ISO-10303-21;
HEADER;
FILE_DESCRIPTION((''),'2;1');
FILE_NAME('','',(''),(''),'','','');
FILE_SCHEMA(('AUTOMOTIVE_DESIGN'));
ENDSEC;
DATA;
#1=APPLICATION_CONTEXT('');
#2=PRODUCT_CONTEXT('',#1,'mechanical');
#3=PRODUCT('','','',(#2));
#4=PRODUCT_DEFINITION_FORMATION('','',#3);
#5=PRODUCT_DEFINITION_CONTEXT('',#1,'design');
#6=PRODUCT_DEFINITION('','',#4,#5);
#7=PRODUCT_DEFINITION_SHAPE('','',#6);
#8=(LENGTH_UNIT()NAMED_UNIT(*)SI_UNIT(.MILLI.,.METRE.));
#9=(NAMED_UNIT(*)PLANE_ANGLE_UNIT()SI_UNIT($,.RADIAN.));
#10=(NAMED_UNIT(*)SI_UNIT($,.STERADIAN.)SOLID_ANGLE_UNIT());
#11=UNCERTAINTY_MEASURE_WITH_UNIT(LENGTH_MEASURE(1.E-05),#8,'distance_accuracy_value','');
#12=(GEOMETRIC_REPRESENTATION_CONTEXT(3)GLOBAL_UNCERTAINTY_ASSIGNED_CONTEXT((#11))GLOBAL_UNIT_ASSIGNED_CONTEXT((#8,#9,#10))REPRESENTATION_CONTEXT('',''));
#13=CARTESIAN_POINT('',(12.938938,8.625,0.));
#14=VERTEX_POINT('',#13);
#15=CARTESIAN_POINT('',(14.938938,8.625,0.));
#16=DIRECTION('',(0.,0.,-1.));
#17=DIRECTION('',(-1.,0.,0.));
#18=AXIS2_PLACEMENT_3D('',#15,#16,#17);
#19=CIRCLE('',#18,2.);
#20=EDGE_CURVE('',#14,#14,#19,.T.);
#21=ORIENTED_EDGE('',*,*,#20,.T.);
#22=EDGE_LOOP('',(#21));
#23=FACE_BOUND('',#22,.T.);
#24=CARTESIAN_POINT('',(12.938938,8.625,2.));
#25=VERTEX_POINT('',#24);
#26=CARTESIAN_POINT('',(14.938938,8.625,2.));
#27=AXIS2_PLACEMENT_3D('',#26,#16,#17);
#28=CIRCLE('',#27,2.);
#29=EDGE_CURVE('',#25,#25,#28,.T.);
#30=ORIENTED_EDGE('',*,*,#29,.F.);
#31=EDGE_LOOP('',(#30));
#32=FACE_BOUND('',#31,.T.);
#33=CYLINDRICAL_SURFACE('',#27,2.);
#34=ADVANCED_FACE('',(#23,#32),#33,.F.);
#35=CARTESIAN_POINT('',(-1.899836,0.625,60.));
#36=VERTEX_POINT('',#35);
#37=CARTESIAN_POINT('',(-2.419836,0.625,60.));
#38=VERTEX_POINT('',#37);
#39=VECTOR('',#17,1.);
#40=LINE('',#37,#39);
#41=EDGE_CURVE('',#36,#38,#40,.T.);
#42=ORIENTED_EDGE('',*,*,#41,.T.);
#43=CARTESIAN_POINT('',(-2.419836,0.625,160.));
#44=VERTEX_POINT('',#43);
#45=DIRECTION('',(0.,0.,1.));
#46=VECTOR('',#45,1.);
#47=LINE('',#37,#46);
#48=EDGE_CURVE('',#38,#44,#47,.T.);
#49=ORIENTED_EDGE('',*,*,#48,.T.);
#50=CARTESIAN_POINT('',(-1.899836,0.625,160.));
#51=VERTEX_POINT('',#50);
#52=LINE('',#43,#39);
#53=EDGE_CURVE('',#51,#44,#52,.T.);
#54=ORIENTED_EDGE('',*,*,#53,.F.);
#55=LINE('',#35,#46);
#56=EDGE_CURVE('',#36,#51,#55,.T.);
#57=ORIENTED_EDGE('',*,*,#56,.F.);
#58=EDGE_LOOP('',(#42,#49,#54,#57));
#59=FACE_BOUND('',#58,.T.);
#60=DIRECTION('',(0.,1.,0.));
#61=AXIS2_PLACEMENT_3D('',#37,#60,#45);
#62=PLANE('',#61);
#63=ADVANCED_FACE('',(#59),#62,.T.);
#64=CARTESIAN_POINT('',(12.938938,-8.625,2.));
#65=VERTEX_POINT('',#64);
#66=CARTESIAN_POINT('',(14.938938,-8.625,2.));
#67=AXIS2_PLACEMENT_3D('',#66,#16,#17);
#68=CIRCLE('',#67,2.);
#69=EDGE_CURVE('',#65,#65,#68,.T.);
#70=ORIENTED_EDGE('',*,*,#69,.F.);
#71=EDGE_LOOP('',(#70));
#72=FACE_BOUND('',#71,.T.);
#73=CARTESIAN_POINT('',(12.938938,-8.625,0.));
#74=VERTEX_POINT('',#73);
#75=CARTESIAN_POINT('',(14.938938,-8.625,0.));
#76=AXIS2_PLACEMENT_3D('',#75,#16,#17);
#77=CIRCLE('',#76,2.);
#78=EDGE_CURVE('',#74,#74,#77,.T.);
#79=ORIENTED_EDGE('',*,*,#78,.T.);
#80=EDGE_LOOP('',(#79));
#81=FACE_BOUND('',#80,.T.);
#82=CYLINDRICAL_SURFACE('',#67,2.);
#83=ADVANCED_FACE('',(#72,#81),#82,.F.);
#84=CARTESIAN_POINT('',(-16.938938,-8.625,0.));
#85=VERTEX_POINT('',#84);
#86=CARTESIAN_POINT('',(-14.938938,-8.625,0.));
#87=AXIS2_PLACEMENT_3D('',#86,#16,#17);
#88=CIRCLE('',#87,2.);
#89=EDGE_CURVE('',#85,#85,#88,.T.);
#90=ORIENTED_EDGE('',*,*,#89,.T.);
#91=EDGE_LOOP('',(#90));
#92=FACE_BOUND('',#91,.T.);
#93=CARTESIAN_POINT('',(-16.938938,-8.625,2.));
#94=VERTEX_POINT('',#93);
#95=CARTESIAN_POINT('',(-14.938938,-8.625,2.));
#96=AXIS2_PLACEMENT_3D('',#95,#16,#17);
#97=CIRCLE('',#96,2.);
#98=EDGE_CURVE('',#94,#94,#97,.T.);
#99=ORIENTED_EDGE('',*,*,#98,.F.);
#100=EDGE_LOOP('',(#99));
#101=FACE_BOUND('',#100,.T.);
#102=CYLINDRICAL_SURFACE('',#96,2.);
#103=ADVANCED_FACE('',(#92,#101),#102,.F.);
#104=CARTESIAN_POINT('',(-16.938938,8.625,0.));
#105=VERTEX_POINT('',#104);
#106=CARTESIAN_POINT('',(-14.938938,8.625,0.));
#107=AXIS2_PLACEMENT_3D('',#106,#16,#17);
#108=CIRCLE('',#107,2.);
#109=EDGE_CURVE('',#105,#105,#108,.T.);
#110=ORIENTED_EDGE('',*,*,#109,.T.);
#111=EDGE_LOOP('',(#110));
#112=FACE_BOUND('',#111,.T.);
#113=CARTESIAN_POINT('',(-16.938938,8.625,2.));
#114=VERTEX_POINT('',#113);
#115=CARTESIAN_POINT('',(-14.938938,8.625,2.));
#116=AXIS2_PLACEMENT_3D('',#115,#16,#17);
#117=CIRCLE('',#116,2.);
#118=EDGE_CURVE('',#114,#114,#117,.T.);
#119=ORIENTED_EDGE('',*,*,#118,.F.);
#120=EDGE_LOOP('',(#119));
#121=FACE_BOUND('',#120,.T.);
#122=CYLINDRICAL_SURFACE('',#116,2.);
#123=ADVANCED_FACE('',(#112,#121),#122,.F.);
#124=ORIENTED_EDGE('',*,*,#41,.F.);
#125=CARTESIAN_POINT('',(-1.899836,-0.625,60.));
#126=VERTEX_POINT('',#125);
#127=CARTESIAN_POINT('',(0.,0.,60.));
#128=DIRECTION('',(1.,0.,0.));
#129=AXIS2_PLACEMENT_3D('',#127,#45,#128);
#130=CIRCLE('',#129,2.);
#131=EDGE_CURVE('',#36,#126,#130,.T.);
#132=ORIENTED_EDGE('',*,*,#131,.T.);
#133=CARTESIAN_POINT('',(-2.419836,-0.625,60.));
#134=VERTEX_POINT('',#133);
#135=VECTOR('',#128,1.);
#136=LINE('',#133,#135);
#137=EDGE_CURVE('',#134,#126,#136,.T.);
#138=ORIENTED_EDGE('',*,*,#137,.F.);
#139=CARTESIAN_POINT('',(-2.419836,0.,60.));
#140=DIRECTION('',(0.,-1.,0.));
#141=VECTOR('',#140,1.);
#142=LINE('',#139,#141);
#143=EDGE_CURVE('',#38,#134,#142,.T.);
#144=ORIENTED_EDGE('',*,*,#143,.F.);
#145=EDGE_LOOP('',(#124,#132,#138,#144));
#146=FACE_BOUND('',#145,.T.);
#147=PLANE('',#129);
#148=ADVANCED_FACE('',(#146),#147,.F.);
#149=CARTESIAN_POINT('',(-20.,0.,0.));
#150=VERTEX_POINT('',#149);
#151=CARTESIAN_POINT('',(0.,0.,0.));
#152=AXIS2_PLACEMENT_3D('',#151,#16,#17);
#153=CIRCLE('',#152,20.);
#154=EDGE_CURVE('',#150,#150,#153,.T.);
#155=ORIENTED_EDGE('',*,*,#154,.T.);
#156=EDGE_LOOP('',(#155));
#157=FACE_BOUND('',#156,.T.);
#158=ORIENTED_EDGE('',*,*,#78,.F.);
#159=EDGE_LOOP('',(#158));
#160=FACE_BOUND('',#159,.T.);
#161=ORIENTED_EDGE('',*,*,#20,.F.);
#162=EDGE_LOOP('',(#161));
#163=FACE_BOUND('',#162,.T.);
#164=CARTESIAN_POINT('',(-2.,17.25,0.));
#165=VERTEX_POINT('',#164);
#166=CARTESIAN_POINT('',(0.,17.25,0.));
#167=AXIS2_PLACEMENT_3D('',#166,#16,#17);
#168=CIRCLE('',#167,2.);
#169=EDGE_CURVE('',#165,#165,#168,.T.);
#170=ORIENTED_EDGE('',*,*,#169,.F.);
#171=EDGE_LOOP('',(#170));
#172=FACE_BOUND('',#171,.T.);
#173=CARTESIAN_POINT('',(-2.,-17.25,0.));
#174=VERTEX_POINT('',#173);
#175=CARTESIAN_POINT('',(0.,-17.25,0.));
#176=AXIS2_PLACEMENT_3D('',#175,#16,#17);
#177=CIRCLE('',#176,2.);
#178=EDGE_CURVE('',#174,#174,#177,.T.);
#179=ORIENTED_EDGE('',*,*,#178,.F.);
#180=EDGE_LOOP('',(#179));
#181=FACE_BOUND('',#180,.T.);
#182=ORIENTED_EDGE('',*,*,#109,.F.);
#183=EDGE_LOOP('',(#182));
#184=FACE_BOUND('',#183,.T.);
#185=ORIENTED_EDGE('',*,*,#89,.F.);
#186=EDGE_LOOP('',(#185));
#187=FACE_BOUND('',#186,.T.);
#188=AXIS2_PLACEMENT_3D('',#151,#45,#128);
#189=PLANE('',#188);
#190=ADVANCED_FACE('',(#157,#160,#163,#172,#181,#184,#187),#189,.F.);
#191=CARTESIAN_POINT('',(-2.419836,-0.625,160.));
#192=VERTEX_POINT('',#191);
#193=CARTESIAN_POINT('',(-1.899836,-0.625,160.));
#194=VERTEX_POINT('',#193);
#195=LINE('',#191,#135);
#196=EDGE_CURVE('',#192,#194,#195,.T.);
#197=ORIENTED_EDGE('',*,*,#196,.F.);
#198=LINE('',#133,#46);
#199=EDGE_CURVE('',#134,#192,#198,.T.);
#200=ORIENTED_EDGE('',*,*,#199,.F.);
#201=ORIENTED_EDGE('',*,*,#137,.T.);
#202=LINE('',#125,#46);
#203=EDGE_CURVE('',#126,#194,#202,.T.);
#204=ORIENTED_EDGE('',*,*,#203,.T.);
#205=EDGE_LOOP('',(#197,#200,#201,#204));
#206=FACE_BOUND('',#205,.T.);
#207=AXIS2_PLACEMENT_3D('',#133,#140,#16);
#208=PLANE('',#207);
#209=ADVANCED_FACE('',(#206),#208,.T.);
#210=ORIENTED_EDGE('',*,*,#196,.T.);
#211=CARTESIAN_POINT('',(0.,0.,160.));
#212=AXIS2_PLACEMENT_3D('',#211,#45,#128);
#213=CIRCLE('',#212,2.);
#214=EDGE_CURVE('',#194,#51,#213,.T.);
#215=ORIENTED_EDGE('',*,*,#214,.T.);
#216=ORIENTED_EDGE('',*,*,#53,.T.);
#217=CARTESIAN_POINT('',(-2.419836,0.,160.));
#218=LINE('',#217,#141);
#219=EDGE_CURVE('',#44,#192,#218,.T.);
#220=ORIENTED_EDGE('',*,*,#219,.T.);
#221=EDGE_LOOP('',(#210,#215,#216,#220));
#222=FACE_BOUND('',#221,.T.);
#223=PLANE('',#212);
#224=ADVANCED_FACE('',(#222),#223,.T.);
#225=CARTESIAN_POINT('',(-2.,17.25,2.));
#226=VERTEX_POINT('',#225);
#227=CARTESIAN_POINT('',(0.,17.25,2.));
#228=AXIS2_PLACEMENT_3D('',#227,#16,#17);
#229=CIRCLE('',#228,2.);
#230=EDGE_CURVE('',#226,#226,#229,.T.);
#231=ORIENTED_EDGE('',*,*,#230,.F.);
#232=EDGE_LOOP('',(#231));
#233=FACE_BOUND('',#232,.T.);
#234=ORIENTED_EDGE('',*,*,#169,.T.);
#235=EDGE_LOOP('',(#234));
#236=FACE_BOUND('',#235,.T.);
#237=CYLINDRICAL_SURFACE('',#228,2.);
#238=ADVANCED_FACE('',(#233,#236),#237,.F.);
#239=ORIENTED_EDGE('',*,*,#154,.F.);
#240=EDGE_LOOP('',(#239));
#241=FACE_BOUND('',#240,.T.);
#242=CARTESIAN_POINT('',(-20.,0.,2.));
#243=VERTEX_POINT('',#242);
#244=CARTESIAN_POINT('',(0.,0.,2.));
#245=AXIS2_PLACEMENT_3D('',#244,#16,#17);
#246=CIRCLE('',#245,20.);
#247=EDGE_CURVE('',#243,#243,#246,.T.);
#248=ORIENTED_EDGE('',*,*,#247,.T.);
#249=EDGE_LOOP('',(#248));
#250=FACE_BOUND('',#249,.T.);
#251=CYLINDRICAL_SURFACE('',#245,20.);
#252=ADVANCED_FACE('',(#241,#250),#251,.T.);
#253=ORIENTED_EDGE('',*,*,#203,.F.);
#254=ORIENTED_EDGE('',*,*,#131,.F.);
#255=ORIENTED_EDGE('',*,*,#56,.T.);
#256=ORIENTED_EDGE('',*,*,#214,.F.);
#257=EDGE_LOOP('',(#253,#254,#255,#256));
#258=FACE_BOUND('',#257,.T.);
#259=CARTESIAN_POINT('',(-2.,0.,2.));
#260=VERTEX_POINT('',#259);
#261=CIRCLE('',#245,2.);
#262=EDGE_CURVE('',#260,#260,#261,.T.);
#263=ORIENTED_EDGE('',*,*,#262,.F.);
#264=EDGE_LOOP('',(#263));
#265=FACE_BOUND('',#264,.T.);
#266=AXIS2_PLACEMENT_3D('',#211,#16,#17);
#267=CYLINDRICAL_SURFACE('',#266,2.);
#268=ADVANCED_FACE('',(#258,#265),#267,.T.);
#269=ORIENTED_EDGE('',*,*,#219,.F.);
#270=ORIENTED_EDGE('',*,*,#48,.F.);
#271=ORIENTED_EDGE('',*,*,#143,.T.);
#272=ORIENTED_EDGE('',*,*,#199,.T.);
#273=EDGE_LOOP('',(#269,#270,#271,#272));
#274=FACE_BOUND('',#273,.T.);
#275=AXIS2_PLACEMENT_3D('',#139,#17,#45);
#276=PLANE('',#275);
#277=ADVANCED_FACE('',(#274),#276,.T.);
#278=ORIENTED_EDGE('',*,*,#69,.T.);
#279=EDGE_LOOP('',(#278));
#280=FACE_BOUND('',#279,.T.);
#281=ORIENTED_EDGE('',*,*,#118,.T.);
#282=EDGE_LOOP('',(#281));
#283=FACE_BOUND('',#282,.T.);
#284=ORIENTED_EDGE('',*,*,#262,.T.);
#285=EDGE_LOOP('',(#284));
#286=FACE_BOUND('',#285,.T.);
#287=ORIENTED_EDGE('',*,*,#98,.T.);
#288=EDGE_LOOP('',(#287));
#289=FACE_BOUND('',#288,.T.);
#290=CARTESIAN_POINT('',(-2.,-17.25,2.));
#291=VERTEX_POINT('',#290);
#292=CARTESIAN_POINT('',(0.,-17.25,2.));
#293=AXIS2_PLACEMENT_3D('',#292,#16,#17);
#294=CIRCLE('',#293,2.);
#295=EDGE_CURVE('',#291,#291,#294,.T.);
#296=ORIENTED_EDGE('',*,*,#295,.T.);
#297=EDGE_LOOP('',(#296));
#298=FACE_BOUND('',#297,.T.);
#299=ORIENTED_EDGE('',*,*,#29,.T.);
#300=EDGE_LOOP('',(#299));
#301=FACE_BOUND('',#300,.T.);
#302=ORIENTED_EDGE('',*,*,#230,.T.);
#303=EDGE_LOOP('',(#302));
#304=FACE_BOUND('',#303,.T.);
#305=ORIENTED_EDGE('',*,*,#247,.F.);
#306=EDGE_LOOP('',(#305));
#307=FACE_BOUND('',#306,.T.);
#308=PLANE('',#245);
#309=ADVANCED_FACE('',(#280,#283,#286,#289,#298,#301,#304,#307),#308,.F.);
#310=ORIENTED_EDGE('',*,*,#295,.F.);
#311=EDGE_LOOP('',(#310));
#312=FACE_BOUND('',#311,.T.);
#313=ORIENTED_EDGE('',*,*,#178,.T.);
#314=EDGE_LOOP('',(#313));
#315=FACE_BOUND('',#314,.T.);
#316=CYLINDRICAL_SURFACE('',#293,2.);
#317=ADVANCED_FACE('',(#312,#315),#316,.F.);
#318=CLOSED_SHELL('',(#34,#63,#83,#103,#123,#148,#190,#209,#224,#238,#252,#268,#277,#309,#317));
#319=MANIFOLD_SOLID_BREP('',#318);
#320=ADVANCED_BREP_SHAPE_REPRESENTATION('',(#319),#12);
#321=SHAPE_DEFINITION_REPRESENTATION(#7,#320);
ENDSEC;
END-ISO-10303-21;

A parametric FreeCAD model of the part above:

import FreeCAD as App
import Part
import Sketcher
from FreeCAD import Vector
Q = App.Units.Quantity

doc = App.newDocument("Part")
body = doc.addObject("PartDesign::Body", "Body")

# Sketch on XY plane
sketch1 = doc.addObject("Sketcher::SketchObject", "Sketch")
body.addObject(sketch1)
sketch1.AttachmentSupport = (doc.XY_Plane, [""])
sketch1.MapMode = "FlatFace"
sketch1.addGeometry(Part.Circle(Vector(0, 0, 0), Vector(0, 0, 1), 2), False)
sketch1.addConstraint([
    Sketcher.Constraint("Coincident", 0, 3, -1, 1),
    Sketcher.Constraint("Diameter", 0, Q("4 mm")),
])
pad1 = doc.addObject("PartDesign::Pad", "Pad")
body.addObject(pad1)
pad1.Profile = sketch1
pad1.Length = 160

# Sketch on XY plane
sketch2 = doc.addObject("Sketcher::SketchObject", "Sketch001")
body.addObject(sketch2)
sketch2.AttachmentSupport = (doc.XY_Plane, [""])
sketch2.MapMode = "FlatFace"
sketch2.addGeometry(Part.Circle(Vector(0, 0, 0), Vector(0, 0, 1), 20), False)
sketch2.addConstraint([
    Sketcher.Constraint("Coincident", 0, 3, -1, 1),
    Sketcher.Constraint("Diameter", 0, Q("40 mm")),
])
pad2 = doc.addObject("PartDesign::Pad", "Pad001")
body.addObject(pad2)
pad2.Profile = sketch2
pad2.Length = 2

# Sketch on XY plane
sketch3 = doc.addObject("Sketcher::SketchObject", "Sketch002")
body.addObject(sketch3)
sketch3.AttachmentSupport = (doc.XY_Plane, [""])
sketch3.MapMode = "FlatFace"
sketch3.addGeometry([
    Part.Circle(Vector(0, 17.2, 0), Vector(0, 0, 1), 2),  # 0
    Part.Circle(Vector(-14.9, 8.6, 0), Vector(0, 0, 1), 2),  # 1
    Part.Circle(Vector(-14.9, -8.6, 0), Vector(0, 0, 1), 2),  # 2
    Part.Circle(Vector(0, -17.2, 0), Vector(0, 0, 1), 2),  # 3
    Part.Circle(Vector(14.9, -8.6, 0), Vector(0, 0, 1), 2),  # 4
    Part.Circle(Vector(14.9, 8.6, 0), Vector(0, 0, 1), 2),  # 5
], False)
sketch3.addConstraint([
    Sketcher.Constraint("Equal", 0, 1),
    Sketcher.Constraint("Equal", 1, 2),
    Sketcher.Constraint("Equal", 2, 3),
    Sketcher.Constraint("Equal", 3, 4),
    Sketcher.Constraint("Equal", 4, 5),
    Sketcher.Constraint("Symmetric", 0, 3, 3, 3, -1, 1),
    Sketcher.Constraint("Symmetric", 1, 3, 4, 3, -1, 1),
    Sketcher.Constraint("Symmetric", 2, 3, 5, 3, -1, 1),
    Sketcher.Constraint("Symmetric", 2, 3, 4, 3, -2),
    Sketcher.Constraint("PointOnObject", 0, 3, -2),
    Sketcher.Constraint("Diameter", 0, Q("4 mm")),
    Sketcher.Constraint("DistanceY", 3, 3, 0, 3, Q("34.5 mm")),
    Sketcher.Constraint("DistanceY", 2, 3, 1, 3, Q("17.25 mm")),
    Sketcher.Constraint("DistanceX", 1, 3, -1, 1, Q("14.938938 mm")),
])
pocket1 = doc.addObject("PartDesign::Pocket", "Pocket")
body.addObject(pocket1)
pocket1.Profile = sketch3
pocket1.Length = 2
pocket1.Reversed = True

# Sketch on XY plane
sketch4 = doc.addObject("Sketcher::SketchObject", "Sketch003")
body.addObject(sketch4)
sketch4.AttachmentSupport = (doc.XY_Plane, [""])
sketch4.MapMode = "FlatFace"
sketch4.AttachmentOffset = App.Placement(Vector(0, 0, 160), App.Rotation())
sketch4.addGeometry([
    Part.LineSegment(Vector(-2.4, 0.6, 0), Vector(-2.4, -0.6, 0)),
    Part.LineSegment(Vector(-2.4, -0.6, 0), Vector(-1.9, -0.6, 0)),
    Part.LineSegment(Vector(-1.9, -0.6, 0), Vector(-1.9, 0.6, 0)),
    Part.LineSegment(Vector(-1.9, 0.6, 0), Vector(-2.4, 0.6, 0)),
], False)
sketch4.addConstraint([
    Sketcher.Constraint("Coincident", 0, 2, 1, 1),
    Sketcher.Constraint("Coincident", 1, 2, 2, 1),
    Sketcher.Constraint("Coincident", 2, 2, 3, 1),
    Sketcher.Constraint("Coincident", 3, 2, 0, 1),
    Sketcher.Constraint("Vertical", 0),
    Sketcher.Constraint("Horizontal", 1),
    Sketcher.Constraint("Vertical", 2),
    Sketcher.Constraint("Horizontal", 3),
    Sketcher.Constraint("DistanceX", 1, 1, 1, 2, Q("0.52 mm")),
    Sketcher.Constraint("DistanceY", 0, 2, 0, 1, Q("1.25 mm")),
    Sketcher.Constraint("DistanceY", 0, 2, -1, 1, Q("0.625 mm")),
    Sketcher.Constraint("DistanceX", 0, 2, -1, 1, Q("2.419836 mm")),
])
pad3 = doc.addObject("PartDesign::Pad", "Pad002")
body.addObject(pad3)
pad3.Profile = sketch4
pad3.Length = 100
pad3.Reversed = True

doc.recompute()
